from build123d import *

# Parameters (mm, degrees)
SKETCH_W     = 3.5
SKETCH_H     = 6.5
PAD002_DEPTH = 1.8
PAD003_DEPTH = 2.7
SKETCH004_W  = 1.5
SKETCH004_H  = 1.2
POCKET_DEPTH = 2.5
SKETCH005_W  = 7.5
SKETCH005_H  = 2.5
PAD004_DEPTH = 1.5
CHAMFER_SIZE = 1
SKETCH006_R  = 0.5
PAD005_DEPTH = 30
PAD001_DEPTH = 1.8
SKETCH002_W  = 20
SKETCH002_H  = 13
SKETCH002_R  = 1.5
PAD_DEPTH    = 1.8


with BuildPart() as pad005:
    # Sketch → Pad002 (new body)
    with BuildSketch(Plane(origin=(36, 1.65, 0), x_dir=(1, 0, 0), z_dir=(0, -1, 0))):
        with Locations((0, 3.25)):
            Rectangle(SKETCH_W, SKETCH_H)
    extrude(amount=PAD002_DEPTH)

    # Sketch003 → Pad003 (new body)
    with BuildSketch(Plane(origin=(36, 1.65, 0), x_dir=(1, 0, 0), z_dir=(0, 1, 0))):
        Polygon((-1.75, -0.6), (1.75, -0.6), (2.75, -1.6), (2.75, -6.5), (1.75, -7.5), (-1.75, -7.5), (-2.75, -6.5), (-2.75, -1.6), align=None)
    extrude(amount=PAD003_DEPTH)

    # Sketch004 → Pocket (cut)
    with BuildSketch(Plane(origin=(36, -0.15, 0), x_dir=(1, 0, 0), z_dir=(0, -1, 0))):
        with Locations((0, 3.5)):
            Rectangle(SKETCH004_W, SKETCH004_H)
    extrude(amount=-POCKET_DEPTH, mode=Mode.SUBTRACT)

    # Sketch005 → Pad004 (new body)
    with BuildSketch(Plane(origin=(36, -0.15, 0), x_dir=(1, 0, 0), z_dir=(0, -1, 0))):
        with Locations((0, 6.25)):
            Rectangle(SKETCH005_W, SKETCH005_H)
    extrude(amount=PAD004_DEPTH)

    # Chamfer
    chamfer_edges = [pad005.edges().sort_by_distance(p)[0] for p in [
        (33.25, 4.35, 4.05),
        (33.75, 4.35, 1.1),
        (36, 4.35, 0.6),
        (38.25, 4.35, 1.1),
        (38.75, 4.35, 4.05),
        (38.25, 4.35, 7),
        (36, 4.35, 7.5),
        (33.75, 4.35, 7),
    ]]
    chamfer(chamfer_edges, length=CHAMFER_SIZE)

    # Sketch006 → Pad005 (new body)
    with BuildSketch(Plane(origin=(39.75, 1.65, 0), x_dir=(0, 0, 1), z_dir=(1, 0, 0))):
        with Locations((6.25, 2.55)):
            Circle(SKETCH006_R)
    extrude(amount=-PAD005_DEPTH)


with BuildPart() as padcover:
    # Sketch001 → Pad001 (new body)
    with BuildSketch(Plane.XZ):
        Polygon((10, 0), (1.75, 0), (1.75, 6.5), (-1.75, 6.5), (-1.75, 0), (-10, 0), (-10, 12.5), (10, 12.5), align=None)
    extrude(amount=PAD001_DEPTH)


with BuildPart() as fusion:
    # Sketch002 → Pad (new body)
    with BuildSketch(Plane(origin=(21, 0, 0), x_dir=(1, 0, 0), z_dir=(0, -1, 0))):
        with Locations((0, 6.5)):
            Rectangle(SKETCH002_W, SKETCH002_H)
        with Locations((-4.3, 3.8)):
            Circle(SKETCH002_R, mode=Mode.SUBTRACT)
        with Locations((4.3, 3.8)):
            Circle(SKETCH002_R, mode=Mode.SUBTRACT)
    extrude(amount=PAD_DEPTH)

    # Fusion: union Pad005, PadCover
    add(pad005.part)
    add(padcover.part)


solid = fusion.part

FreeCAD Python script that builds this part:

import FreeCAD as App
import Part
import Sketcher


def edges_at(feature, points):
    """Names of the edges that pass closest to the given points."""
    edges = feature.Shape.Edges
    near = lambda p: min(range(len(edges)), key=lambda i: edges[i].distToShape(Part.Vertex(*p))[0])
    return sorted({f"Edge{near(p) + 1}" for p in points})


def add_polygon(sketch, points):
    """Adds a closed chain of lines whose ends are joined by coincident constraints."""
    first, n = sketch.GeometryCount, len(points)
    for a, b in zip(points, points[1:] + points[:1]):
        sketch.addGeometry(Part.LineSegment(App.Vector(*a, 0), App.Vector(*b, 0)), False)
    for i in range(n):
        sketch.addConstraint(Sketcher.Constraint("Coincident", first + i, 2, first + (i + 1) % n, 1))

doc = App.newDocument("Part")
body = doc.addObject("PartDesign::Body", "Body")

# Sketch on XZ plane
sketch1 = body.newObject("Sketcher::SketchObject", "Sketch")
sketch1.AttachmentSupport = (doc.getObject("XZ_Plane"), [""])
sketch1.MapMode = "FlatFace"
sketch1.AttachmentOffset = App.Placement(App.Vector(0, 0, -1.65), App.Rotation())
add_polygon(sketch1, [(34.2, 6.5), (34.2, 0), (37.8, 0), (37.8, 6.5)])  # lines 0-3
sketch1.addConstraint([
    Sketcher.Constraint("Vertical", 0),
    Sketcher.Constraint("Horizontal", 1),
    Sketcher.Constraint("Vertical", 2),
    Sketcher.Constraint("Horizontal", 3),
    Sketcher.Constraint("PointOnObject", 0, 2, -1),
    Sketcher.Constraint("DistanceX", 1, 1, 1, 2, 3.5),
    Sketcher.Constraint("DistanceY", 0, 2, 0, 1, 6.5),
    Sketcher.Constraint("DistanceX", -1, 1, 0, 2, 34.25),
])
pad1 = body.newObject("PartDesign::Pad", "Pad")
pad1.Profile = sketch1
pad1.Length = 1.8

# Sketch on XZ plane
sketch2 = body.newObject("Sketcher::SketchObject", "Sketch001")
sketch2.AttachmentSupport = (doc.getObject("XZ_Plane"), [""])
sketch2.MapMode = "FlatFace"
sketch2.AttachmentOffset = App.Placement(App.Vector(0, 0, -1.65), App.Rotation())
add_polygon(sketch2, [(37.8, 0.6), (34.2, 0.6), (33.2, 1.6), (33.2, 6.5), (34.2, 7.5), (37.8, 7.5), (38.8, 6.5), (38.8, 1.6)])  # lines 0-7
sketch2.addConstraint([
    Sketcher.Constraint("Horizontal", 0),
    Sketcher.Constraint("Vertical", 2),
    Sketcher.Constraint("Horizontal", 4),
    Sketcher.Constraint("Vertical", 6),
    Sketcher.Constraint("Perpendicular", 1, 3),
    Sketcher.Constraint("Perpendicular", 3, 5),
    Sketcher.Constraint("Perpendicular", 5, 7),
    Sketcher.Constraint("Horizontal", 2, 2, 5, 2),
    Sketcher.Constraint("Horizontal", 1, 2, 6, 2),
    Sketcher.Constraint("Vertical", 0, 2, 3, 2),
    Sketcher.Constraint("Vertical", 4, 2, 7, 2),
    Sketcher.Constraint("DistanceX", 0, 2, 0, 1, 3.5),
    Sketcher.Constraint("DistanceY", 2, 1, 2, 2, 4.9),
    Sketcher.Constraint("DistanceX", 1, 2, 0, 2, 1.0),
    Sketcher.Constraint("DistanceY", -1, 1, 0, 2, 0.6),
    Sketcher.Constraint("DistanceX", -1, 1, 0, 2, 34.25),
])
pad2 = body.newObject("PartDesign::Pad", "Pad001")
pad2.Profile = sketch2
pad2.Length = 2.7
pad2.Reversed = True

# Sketch on XZ plane
sketch3 = body.newObject("Sketcher::SketchObject", "Sketch002")
sketch3.AttachmentSupport = (doc.getObject("XZ_Plane"), [""])
sketch3.MapMode = "FlatFace"
sketch3.AttachmentOffset = App.Placement(App.Vector(0, 0, 0.15), App.Rotation())
add_polygon(sketch3, [(35.2, 4.1), (35.2, 2.9), (36.8, 2.9), (36.8, 4.1)])  # lines 0-3
sketch3.addConstraint([
    Sketcher.Constraint("Vertical", 0),
    Sketcher.Constraint("Horizontal", 1),
    Sketcher.Constraint("Vertical", 2),
    Sketcher.Constraint("Horizontal", 3),
    Sketcher.Constraint("DistanceX", 1, 1, 1, 2, 1.5),
    Sketcher.Constraint("DistanceY", 0, 2, 0, 1, 1.2),
    Sketcher.Constraint("DistanceY", -1, 1, 0, 2, 2.9),
    Sketcher.Constraint("DistanceX", -1, 1, 0, 2, 35.25),
])
pocket1 = body.newObject("PartDesign::Pocket", "Pocket")
pocket1.Profile = sketch3
pocket1.Length = 2.5

# Sketch on XZ plane
sketch4 = body.newObject("Sketcher::SketchObject", "Sketch003")
sketch4.AttachmentSupport = (doc.getObject("XZ_Plane"), [""])
sketch4.MapMode = "FlatFace"
sketch4.AttachmentOffset = App.Placement(App.Vector(0, 0, 0.15), App.Rotation())
add_polygon(sketch4, [(32.2, 7.5), (32.2, 5), (39.8, 5), (39.8, 7.5)])  # lines 0-3
sketch4.addConstraint([
    Sketcher.Constraint("Vertical", 0),
    Sketcher.Constraint("Horizontal", 1),
    Sketcher.Constraint("Vertical", 2),
    Sketcher.Constraint("Horizontal", 3),
    Sketcher.Constraint("DistanceX", 1, 1, 1, 2, 7.5),
    Sketcher.Constraint("DistanceY", 0, 2, 0, 1, 2.5),
    Sketcher.Constraint("DistanceY", -1, 1, 0, 2, 5.0),
    Sketcher.Constraint("DistanceX", -1, 1, 0, 2, 32.25),
])
pad3 = body.newObject("PartDesign::Pad", "Pad002")
pad3.Profile = sketch4
pad3.Length = 1.5
doc.recompute()

chamfer = body.newObject("PartDesign::Chamfer", "Chamfer")
chamfer.Base = (pad3, edges_at(pad3, [
    (33.25, 4.35, 4.05),
    (33.75, 4.35, 1.1),
    (36, 4.35, 0.6),
    (38.25, 4.35, 1.1),
    (38.75, 4.35, 4.05),
    (38.25, 4.35, 7),
    (36, 4.35, 7.5),
    (33.75, 4.35, 7),
]))
chamfer.Size = 1

# Sketch on YZ plane
sketch5 = body.newObject("Sketcher::SketchObject", "Sketch004")
sketch5.AttachmentSupport = (doc.getObject("YZ_Plane"), [""])
sketch5.MapMode = "FlatFace"
sketch5.AttachmentOffset = App.Placement(App.Vector(0, 0, 39.75), App.Rotation())
sketch5.addGeometry(Part.Circle(App.Vector(-0.9, 6.2, 0), App.Vector(0, 0, 1), 0.5), False)
sketch5.addConstraint([
    Sketcher.Constraint("Diameter", 0, 1.0),
    Sketcher.Constraint("DistanceX", 0, 3, -1, 1, 0.9),
    Sketcher.Constraint("DistanceY", -1, 1, 0, 3, 6.25),
])
pad4 = body.newObject("PartDesign::Pad", "Pad003")
pad4.Profile = sketch5
pad4.Length = 30
pad4.Reversed = True
body2 = doc.addObject("PartDesign::Body", "Body001")

# Sketch on XZ plane
sketch6 = body2.newObject("Sketcher::SketchObject", "Sketch005")
sketch6.AttachmentSupport = (doc.getObject("XZ_Plane001"), [""])
sketch6.MapMode = "FlatFace"
add_polygon(sketch6, [(1.8, 0), (10, 0), (10, 12.5), (-10, 12.5), (-10, 0), (-1.8, 0), (-1.8, 6.5), (1.8, 6.5)])  # lines 0-7
sketch6.addConstraint([
    Sketcher.Constraint("Horizontal", 0),
    Sketcher.Constraint("Vertical", 1),
    Sketcher.Constraint("Horizontal", 2),
    Sketcher.Constraint("Vertical", 3),
    Sketcher.Constraint("Horizontal", 4),
    Sketcher.Constraint("Vertical", 5),
    Sketcher.Constraint("Horizontal", 6),
    Sketcher.Constraint("Vertical", 7),
    Sketcher.Constraint("Symmetric", 0, 2, 3, 2, -1, 1),
    Sketcher.Constraint("Symmetric", 4, 2, 7, 2, -2),
    Sketcher.Constraint("DistanceX", 2, 2, 2, 1, 20.0),
    Sketcher.Constraint("DistanceX", 6, 1, 6, 2, 3.5),
    Sketcher.Constraint("DistanceY", 1, 1, 1, 2, 12.5),
    Sketcher.Constraint("DistanceY", 5, 1, 5, 2, 6.5),
])
pad5 = body2.newObject("PartDesign::Pad", "Pad004")
pad5.Profile = sketch6
pad5.Length = 1.8
body3 = doc.addObject("PartDesign::Body", "Body002")

# Sketch on XZ plane
sketch7 = body3.newObject("Sketcher::SketchObject", "Sketch006")
sketch7.AttachmentSupport = (doc.getObject("XZ_Plane002"), [""])
sketch7.MapMode = "FlatFace"
add_polygon(sketch7, [(11, 13), (11, 0), (31, 0), (31, 13)])  # lines 0-3
sketch7.addGeometry(Part.Circle(App.Vector(16.7, 3.8, 0), App.Vector(0, 0, 1), 1.5), False)  # 4
sketch7.addGeometry(Part.Circle(App.Vector(25.3, 3.8, 0), App.Vector(0, 0, 1), 1.5), False)  # 5
sketch7.addConstraint([
    Sketcher.Constraint("Vertical", 0),
    Sketcher.Constraint("Horizontal", 1),
    Sketcher.Constraint("Vertical", 2),
    Sketcher.Constraint("Horizontal", 3),
    Sketcher.Constraint("Equal", 4, 5),
    Sketcher.Constraint("PointOnObject", 0, 2, -1),
    Sketcher.Constraint("Horizontal", 4, 3, 5, 3),
    Sketcher.Constraint("Diameter", 4, 3.0),
    Sketcher.Constraint("DistanceX", 1, 1, 1, 2, 20.0),
    Sketcher.Constraint("DistanceY", 0, 2, 0, 1, 13.0),
    Sketcher.Constraint("DistanceX", -1, 1, 0, 2, 11.0),
    Sketcher.Constraint("DistanceX", -1, 1, 4, 3, 16.7),
    Sketcher.Constraint("DistanceY", -1, 1, 4, 3, 3.8),
    Sketcher.Constraint("DistanceX", -1, 1, 5, 3, 25.3),
])
pad6 = body3.newObject("PartDesign::Pad", "Pad005")
pad6.Profile = sketch7
pad6.Length = 1.8
doc.recompute()

boolean = body3.newObject("PartDesign::Boolean", "Boolean")
boolean.Type = "Fuse"
boolean.addObjects([body])
doc.recompute()

boolean2 = body3.newObject("PartDesign::Boolean", "Boolean001")
boolean2.Type = "Fuse"
boolean2.addObjects([body2])

doc.recompute()
